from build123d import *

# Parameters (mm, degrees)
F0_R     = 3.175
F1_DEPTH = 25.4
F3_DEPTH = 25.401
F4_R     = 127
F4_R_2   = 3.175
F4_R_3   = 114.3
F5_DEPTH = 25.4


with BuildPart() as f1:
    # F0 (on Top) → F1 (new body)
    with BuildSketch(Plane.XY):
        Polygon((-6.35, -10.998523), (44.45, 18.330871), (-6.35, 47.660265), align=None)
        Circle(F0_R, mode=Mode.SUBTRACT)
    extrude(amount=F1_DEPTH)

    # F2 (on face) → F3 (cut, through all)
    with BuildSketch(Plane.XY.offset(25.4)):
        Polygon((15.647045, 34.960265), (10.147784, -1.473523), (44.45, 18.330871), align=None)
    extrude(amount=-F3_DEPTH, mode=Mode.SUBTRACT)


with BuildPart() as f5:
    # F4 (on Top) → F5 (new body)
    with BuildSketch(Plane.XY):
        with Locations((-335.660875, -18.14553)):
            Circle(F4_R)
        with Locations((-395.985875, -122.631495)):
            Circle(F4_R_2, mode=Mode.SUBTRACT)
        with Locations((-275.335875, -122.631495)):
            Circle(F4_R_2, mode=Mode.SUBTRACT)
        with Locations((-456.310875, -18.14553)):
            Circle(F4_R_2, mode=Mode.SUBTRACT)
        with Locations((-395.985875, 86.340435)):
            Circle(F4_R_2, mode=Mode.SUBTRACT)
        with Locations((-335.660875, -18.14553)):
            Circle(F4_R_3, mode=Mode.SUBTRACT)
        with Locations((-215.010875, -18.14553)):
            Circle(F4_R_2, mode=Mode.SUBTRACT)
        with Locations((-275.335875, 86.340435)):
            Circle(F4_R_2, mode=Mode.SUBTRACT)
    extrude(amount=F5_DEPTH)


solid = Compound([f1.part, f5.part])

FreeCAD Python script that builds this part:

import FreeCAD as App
import Part
import Sketcher

V = App.Vector
Q = App.Units.Quantity


def add_polygon(sketch, points):
    """Adds a closed chain of lines whose ends are joined by coincident constraints."""
    first, n = sketch.GeometryCount, len(points)
    for a, b in zip(points, points[1:] + points[:1]):
        sketch.addGeometry(Part.LineSegment(App.Vector(*a, 0), App.Vector(*b, 0)), False)
    for i in range(n):
        sketch.addConstraint(Sketcher.Constraint("Coincident", first + i, 2, first + (i + 1) % n, 1))

doc = App.newDocument("Part")
params = doc.addObject("Spreadsheet::Sheet", "Params")
for row, (alias, value) in enumerate([
    ("sketch1_diameter", "0.25 in"),
    ("pad1_length", "1 in"),
    ("sketch3_diameter", "10 in"),
    ("sketch3_diameter2", "9 in"),
    ("sketch3_diameter3", "0.25 in"),
    ("pad2_length", "1 in"),
], start=1):
    params.set(f"A{row}", alias)
    params.set(f"B{row}", "=" + value)
    params.setAlias(f"B{row}", alias)

body = doc.addObject("PartDesign::Body", "Body")

# Sketch on XY plane
sketch1 = body.newObject("Sketcher::SketchObject", "Sketch")
sketch1.AttachmentSupport = (doc.getObject("XY_Plane"), [""])
sketch1.MapMode = "FlatFace"
add_polygon(sketch1, [(-6.3, -11), (44.5, 18.3), (-6.3, 47.7)])  # lines 0-2
sketch1.addGeometry(Part.Circle(V(0, 0, 0), V(0, 0, 1), 3.2), False)  # 3
sketch1.addConstraint([
    Sketcher.Constraint("Vertical", 2),
    Sketcher.Constraint("Coincident", 3, 3, -1, 1),
    Sketcher.Constraint("Equal", 0, 1),
    Sketcher.Constraint("Diameter", 3, Q("0.25 in")),
    Sketcher.Constraint("Angle", 0, Q("30 deg")),
    Sketcher.Constraint("DistanceX", 1, 2, 0, 2, Q("2 in")),
    Sketcher.Constraint("DistanceX", -1, 1, 0, 2, Q("1.75 in")),
    Sketcher.Constraint("DistanceY", -1, 1, 0, 2, 18.330871),
])
sketch1.setExpression("Constraints[6]", "Params.sketch1_diameter")
pad1 = body.newObject("PartDesign::Pad", "Pad")
pad1.Profile = sketch1
pad1.setExpression("Length", "Params.pad1_length")

# Sketch on XY plane
sketch2 = body.newObject("Sketcher::SketchObject", "Sketch001")
sketch2.AttachmentSupport = (doc.getObject("XY_Plane"), [""])
sketch2.MapMode = "FlatFace"
sketch2.AttachmentOffset = App.Placement(V(0, 0, 1 * 25.4), App.Rotation())
add_polygon(sketch2, [(16, 35), (10, -1), (44, 18)])  # lines 0-2
sketch2.addConstraint([
    Sketcher.Constraint("Angle", 1, Q("30 deg")),
    Sketcher.Constraint("Angle", 2, Q("150 deg")),
    Sketcher.Constraint("DistanceX", -1, 1, 1, 2, Q("1.75 in")),
    Sketcher.Constraint("DistanceY", -1, 1, 1, 2, 18.330871),
    Sketcher.Constraint("DistanceX", 0, 2, 2, 2, 5.499261),
    Sketcher.Constraint("Distance", 0, 36.846476),
])
pocket1 = body.newObject("PartDesign::Pocket", "Pocket")
pocket1.Profile = sketch2
pocket1.Type = "ThroughAll"
body2 = doc.addObject("PartDesign::Body", "Body001")

# Sketch on XY plane
sketch3 = body2.newObject("Sketcher::SketchObject", "Sketch002")
sketch3.AttachmentSupport = (doc.getObject("XY_Plane001"), [""])
sketch3.MapMode = "FlatFace"
sketch3.addGeometry([
    Part.Circle(V(-335.7, -18.1, 0), V(0, 0, 1), 127),  # 0
    Part.Circle(V(-396, -122.6, 0), V(0, 0, 1), 3.2),  # 1
    Part.Circle(V(-275.3, -122.6, 0), V(0, 0, 1), 3.2),  # 2
    Part.Circle(V(-456.3, -18.1, 0), V(0, 0, 1), 3.2),  # 3
    Part.Circle(V(-396, 86.3, 0), V(0, 0, 1), 3.2),  # 4
    Part.Circle(V(-335.7, -18.1, 0), V(0, 0, 1), 114.3),  # 5
    Part.Circle(V(-215, -18.1, 0), V(0, 0, 1), 3.2),  # 6
    Part.Circle(V(-275.3, 86.3, 0), V(0, 0, 1), 3.2),  # 7
], False)
sketch3.addConstraint([
    Sketcher.Constraint("Coincident", 5, 3, 0, 3),
    Sketcher.Constraint("Equal", 1, 2),
    Sketcher.Constraint("Equal", 2, 3),
    Sketcher.Constraint("Equal", 3, 4),
    Sketcher.Constraint("Equal", 4, 6),
    Sketcher.Constraint("Equal", 6, 7),
    Sketcher.Constraint("Horizontal", 1, 3, 2, 3),
    Sketcher.Constraint("Horizontal", 0, 3, 3, 3),
    Sketcher.Constraint("Horizontal", 5, 3, 6, 3),
    Sketcher.Constraint("Horizontal", 4, 3, 7, 3),
    Sketcher.Constraint("Vertical", 1, 3, 4, 3),
    Sketcher.Constraint("Vertical", 2, 3, 7, 3),
    Sketcher.Constraint("Diameter", 0, Q("10 in")),
    Sketcher.Constraint("Diameter", 5, Q("9 in")),
    Sketcher.Constraint("Diameter", 1, Q("0.25 in")),
    Sketcher.Constraint("DistanceX", 1, 3, 2, 3, Q("4.75 in")),
    Sketcher.Constraint("DistanceX", 3, 3, 0, 3, Q("4.75 in")),
    Sketcher.Constraint("DistanceX", 0, 3, 6, 3, Q("4.75 in")),
    Sketcher.Constraint("DistanceX", 1, 3, 0, 3, Q("2.375 in")),
    Sketcher.Constraint("DistanceY", 0, 3, -1, 1, 18.14553),
    Sketcher.Constraint("DistanceY", 1, 3, 4, 3, 208.97193),
    Sketcher.Constraint("DistanceX", 0, 3, -1, 1, 335.660875),
    Sketcher.Constraint("DistanceY", 1, 3, -1, 1, 122.631495),
])
sketch3.setExpression("Constraints[12]", "Params.sketch3_diameter")
sketch3.setExpression("Constraints[13]", "Params.sketch3_diameter2")
sketch3.setExpression("Constraints[14]", "Params.sketch3_diameter3")
pad2 = body2.newObject("PartDesign::Pad", "Pad001")
pad2.Profile = sketch3
pad2.setExpression("Length", "Params.pad2_length")

doc.recompute()
